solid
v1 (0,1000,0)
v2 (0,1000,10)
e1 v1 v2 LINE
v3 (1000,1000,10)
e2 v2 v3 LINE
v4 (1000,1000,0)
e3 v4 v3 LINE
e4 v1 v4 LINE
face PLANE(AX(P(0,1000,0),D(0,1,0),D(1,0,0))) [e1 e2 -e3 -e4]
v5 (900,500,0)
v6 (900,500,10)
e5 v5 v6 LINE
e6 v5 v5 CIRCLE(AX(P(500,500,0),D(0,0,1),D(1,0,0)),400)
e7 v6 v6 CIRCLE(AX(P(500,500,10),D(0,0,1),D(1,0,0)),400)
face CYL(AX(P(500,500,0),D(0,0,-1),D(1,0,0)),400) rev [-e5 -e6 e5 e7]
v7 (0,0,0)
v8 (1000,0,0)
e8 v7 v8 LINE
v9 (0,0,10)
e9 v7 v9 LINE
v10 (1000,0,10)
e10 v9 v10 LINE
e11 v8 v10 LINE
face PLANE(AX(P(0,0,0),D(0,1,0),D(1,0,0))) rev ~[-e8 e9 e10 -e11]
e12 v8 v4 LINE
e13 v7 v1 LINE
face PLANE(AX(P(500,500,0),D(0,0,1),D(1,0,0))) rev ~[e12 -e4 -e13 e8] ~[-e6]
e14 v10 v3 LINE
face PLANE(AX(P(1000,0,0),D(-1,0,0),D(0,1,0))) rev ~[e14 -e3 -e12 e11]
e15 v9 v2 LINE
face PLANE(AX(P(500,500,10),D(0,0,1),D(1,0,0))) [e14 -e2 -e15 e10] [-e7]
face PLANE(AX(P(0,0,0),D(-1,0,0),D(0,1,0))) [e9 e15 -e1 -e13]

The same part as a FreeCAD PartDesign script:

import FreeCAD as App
import Part
import Sketcher
from FreeCAD import Vector

doc = App.newDocument("Part")
params = doc.addObject("Spreadsheet::Sheet", "Params")
for row, (alias, value) in enumerate([
    ("sketch1_diameter", "800 mm"),
    ("pad1_length", "10 mm"),
    ("sketch2_width", "1000 mm"),
    ("pad2_length", "10 mm"),
], start=1):
    params.set(f"A{row}", alias)
    params.set(f"B{row}", "=" + value)
    params.setAlias(f"B{row}", alias)

body = doc.addObject("PartDesign::Body", "Body")

# Sketch on XY plane
sketch1 = doc.addObject("Sketcher::SketchObject", "Sketch")
body.addObject(sketch1)
sketch1.AttachmentSupport = (doc.XY_Plane, [""])
sketch1.MapMode = "FlatFace"
sketch1.addGeometry(Part.Circle(Vector(500, 500, 0), Vector(0, 0, 1), 400), False)
sketch1.addConstraint(Sketcher.Constraint("Diameter", 0, 800.0))
sketch1.addConstraint(Sketcher.Constraint("DistanceX", -1, 1, 0, 3, 500.0))
sketch1.addConstraint(Sketcher.Constraint("DistanceY", -1, 1, 0, 3, 500.0))
sketch1.setExpression("Constraints[0]", "Params.sketch1_diameter")
pad1 = doc.addObject("PartDesign::Pad", "Pad")
body.addObject(pad1)
pad1.Profile = sketch1
pad1.setExpression("Length", "Params.pad1_length")
body2 = doc.addObject("PartDesign::Body", "Body001")

# Sketch on XY plane
sketch2 = doc.addObject("Sketcher::SketchObject", "Sketch001")
body2.addObject(sketch2)
sketch2.AttachmentSupport = (doc.getObject("XY_Plane001"), [""])
sketch2.MapMode = "FlatFace"
sketch2.addGeometry(Part.LineSegment(Vector(0, 1000, 0), Vector(0, 0, 0)), False)
sketch2.addGeometry(Part.LineSegment(Vector(0, 0, 0), Vector(1000, 0, 0)), False)
sketch2.addGeometry(Part.LineSegment(Vector(1000, 0, 0), Vector(1000, 1000, 0)), False)
sketch2.addGeometry(Part.LineSegment(Vector(1000, 1000, 0), Vector(0, 1000, 0)), False)
sketch2.addConstraint(Sketcher.Constraint("Coincident", 0, 2, 1, 1))
sketch2.addConstraint(Sketcher.Constraint("Coincident", 1, 2, 2, 1))
sketch2.addConstraint(Sketcher.Constraint("Coincident", 2, 2, 3, 1))
sketch2.addConstraint(Sketcher.Constraint("Coincident", 3, 2, 0, 1))
sketch2.addConstraint(Sketcher.Constraint("Vertical", 0))
sketch2.addConstraint(Sketcher.Constraint("Horizontal", 1))
sketch2.addConstraint(Sketcher.Constraint("Vertical", 2))
sketch2.addConstraint(Sketcher.Constraint("Horizontal", 3))
sketch2.addConstraint(Sketcher.Constraint("Coincident", 0, 2, -1, 1))
sketch2.addConstraint(Sketcher.Constraint("Equal", 3, 0))
sketch2.addConstraint(Sketcher.Constraint("DistanceX", 1, 1, 1, 2, 1000.0))
sketch2.setExpression("Constraints[10]", "Params.sketch2_width")
pad2 = doc.addObject("PartDesign::Pad", "Pad001")
body2.addObject(pad2)
pad2.Profile = sketch2
pad2.setExpression("Length", "Params.pad2_length")
doc.recompute()

boolean = doc.addObject("PartDesign::Boolean", "Boolean")
body2.addObject(boolean)
boolean.Type = "Cut"
boolean.addObjects([body])

doc.recompute()
